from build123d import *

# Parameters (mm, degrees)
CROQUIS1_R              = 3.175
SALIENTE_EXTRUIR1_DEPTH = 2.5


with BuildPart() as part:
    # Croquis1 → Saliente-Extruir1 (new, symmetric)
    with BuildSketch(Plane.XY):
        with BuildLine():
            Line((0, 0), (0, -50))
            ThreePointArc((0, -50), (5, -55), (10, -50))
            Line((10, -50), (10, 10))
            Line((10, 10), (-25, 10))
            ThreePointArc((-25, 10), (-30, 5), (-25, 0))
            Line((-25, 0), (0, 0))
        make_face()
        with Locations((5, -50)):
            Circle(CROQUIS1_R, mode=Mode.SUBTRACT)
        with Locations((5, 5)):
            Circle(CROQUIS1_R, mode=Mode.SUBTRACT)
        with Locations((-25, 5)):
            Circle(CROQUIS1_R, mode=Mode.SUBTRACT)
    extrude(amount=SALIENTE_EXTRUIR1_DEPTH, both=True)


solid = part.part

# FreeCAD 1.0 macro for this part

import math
import FreeCAD as App
import Part
import Sketcher
Q = App.Units.Quantity

doc = App.newDocument("Part")
body = doc.addObject("PartDesign::Body", "Body")

sketch1 = body.newObject("Sketcher::SketchObject", "Sketch")
sketch1.AttachmentSupport = (doc.getObject("XY_Plane"), [""])
sketch1.MapMode = "FlatFace"
sketch1.addGeometry([
    Part.LineSegment(App.Vector(0, 0, 0), App.Vector(0, -50, 0)),
    Part.ArcOfCircle(Part.Circle(App.Vector(5, -50, 0), App.Vector(0, 0, 1), 5), math.radians(180), math.radians(360)),
    Part.LineSegment(App.Vector(10, -50, 0), App.Vector(10, 10, 0)),
    Part.LineSegment(App.Vector(10, 10, 0), App.Vector(-25, 10, 0)),
    Part.ArcOfCircle(Part.Circle(App.Vector(-25, 5, 0), App.Vector(0, 0, 1), 5), math.radians(90), math.radians(270)),
    Part.LineSegment(App.Vector(-25, 0, 0), App.Vector(0, 0, 0)),
    Part.Circle(App.Vector(5, -50, 0), App.Vector(0, 0, 1), 3.2),
    Part.Circle(App.Vector(-25, 5, 0), App.Vector(0, 0, 1), 3.2),
    Part.Circle(App.Vector(5, 5, 0), App.Vector(0, 0, 1), 3.2),
], False)
sketch1.addConstraint([
    Sketcher.Constraint("Tangent", 0, 2, 1, 1),
    Sketcher.Constraint("Tangent", 1, 2, 2, 1),
    Sketcher.Constraint("Coincident", 2, 2, 3, 1),
    Sketcher.Constraint("Tangent", 3, 2, 4, 1),
    Sketcher.Constraint("Tangent", 4, 2, 5, 1),
    Sketcher.Constraint("Coincident", 5, 2, 0, 1),
    Sketcher.Constraint("Vertical", 0),
    Sketcher.Constraint("Vertical", 2),
    Sketcher.Constraint("Horizontal", 3),
    Sketcher.Constraint("Horizontal", 5),
    Sketcher.Constraint("Coincident", 5, 2, -1, 1),
    Sketcher.Constraint("Coincident", 6, 3, 1, 3),
    Sketcher.Constraint("Coincident", 7, 3, 4, 3),
    Sketcher.Constraint("Equal", 1, 4),
    Sketcher.Constraint("Equal", 6, 7),
    Sketcher.Constraint("Equal", 7, 8),
    Sketcher.Constraint("Horizontal", 7, 3, 8, 3),
    Sketcher.Constraint("Vertical", 6, 3, 8, 3),
    Sketcher.Constraint("Radius", 1, Q("5 mm")),
    Sketcher.Constraint("Diameter", 6, Q("6.35 mm")),
    Sketcher.Constraint("DistanceX", 3, 2, 3, 1, Q("35 mm")),
    Sketcher.Constraint("DistanceY", 0, 2, 0, 1, Q("50 mm")),
])
pad1 = body.newObject("PartDesign::Pad", "Pad")
pad1.Profile = sketch1
pad1.Length = 5
pad1.Midplane = True

doc.recompute()
